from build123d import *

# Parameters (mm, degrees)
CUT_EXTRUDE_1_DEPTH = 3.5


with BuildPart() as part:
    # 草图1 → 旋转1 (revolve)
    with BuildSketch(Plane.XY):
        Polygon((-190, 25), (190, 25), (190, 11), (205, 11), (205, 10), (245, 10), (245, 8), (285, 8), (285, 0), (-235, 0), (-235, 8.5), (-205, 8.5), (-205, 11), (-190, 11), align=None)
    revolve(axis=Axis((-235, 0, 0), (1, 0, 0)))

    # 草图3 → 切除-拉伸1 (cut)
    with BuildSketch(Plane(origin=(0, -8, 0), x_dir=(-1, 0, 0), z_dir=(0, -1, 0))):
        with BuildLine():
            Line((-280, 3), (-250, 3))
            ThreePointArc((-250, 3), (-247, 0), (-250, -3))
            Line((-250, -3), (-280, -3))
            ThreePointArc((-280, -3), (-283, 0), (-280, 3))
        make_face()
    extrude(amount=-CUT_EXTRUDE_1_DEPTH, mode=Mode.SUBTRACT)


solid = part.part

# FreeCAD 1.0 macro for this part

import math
import FreeCAD as App
import Part
import Sketcher
from FreeCAD import Vector

doc = App.newDocument("Part")
body = doc.addObject("PartDesign::Body", "Body")

# Sketch on XY plane
sketch1 = body.newObject("Sketcher::SketchObject", "Sketch")
sketch1.AttachmentSupport = (doc.getObject("XY_Plane"), [""])
sketch1.MapMode = "FlatFace"
sketch1.addGeometry(Part.LineSegment(Vector(190, 25, 0), Vector(-190, 25, 0)), False)
sketch1.addGeometry(Part.LineSegment(Vector(-190, 25, 0), Vector(-190, 11, 0)), False)
sketch1.addGeometry(Part.LineSegment(Vector(-190, 11, 0), Vector(-205, 11, 0)), False)
sketch1.addGeometry(Part.LineSegment(Vector(-205, 11, 0), Vector(-205, 8.5, 0)), False)
sketch1.addGeometry(Part.LineSegment(Vector(-205, 8.5, 0), Vector(-235, 8.5, 0)), False)
sketch1.addGeometry(Part.LineSegment(Vector(-235, 8.5, 0), Vector(-235, 0, 0)), False)
sketch1.addGeometry(Part.LineSegment(Vector(-235, 0, 0), Vector(285, 0, 0)), False)
sketch1.addGeometry(Part.LineSegment(Vector(285, 0, 0), Vector(285, 8, 0)), False)
sketch1.addGeometry(Part.LineSegment(Vector(285, 8, 0), Vector(245, 8, 0)), False)
sketch1.addGeometry(Part.LineSegment(Vector(245, 8, 0), Vector(245, 10, 0)), False)
sketch1.addGeometry(Part.LineSegment(Vector(245, 10, 0), Vector(205, 10, 0)), False)
sketch1.addGeometry(Part.LineSegment(Vector(205, 10, 0), Vector(205, 11, 0)), False)
sketch1.addGeometry(Part.LineSegment(Vector(205, 11, 0), Vector(190, 11, 0)), False)
sketch1.addGeometry(Part.LineSegment(Vector(190, 11, 0), Vector(190, 25, 0)), False)
sketch1.addConstraint(Sketcher.Constraint("Coincident", 0, 2, 1, 1))
sketch1.addConstraint(Sketcher.Constraint("Coincident", 1, 2, 2, 1))
sketch1.addConstraint(Sketcher.Constraint("Coincident", 2, 2, 3, 1))
sketch1.addConstraint(Sketcher.Constraint("Coincident", 3, 2, 4, 1))
sketch1.addConstraint(Sketcher.Constraint("Coincident", 4, 2, 5, 1))
sketch1.addConstraint(Sketcher.Constraint("Coincident", 5, 2, 6, 1))
sketch1.addConstraint(Sketcher.Constraint("Coincident", 6, 2, 7, 1))
sketch1.addConstraint(Sketcher.Constraint("Coincident", 7, 2, 8, 1))
sketch1.addConstraint(Sketcher.Constraint("Coincident", 8, 2, 9, 1))
sketch1.addConstraint(Sketcher.Constraint("Coincident", 9, 2, 10, 1))
sketch1.addConstraint(Sketcher.Constraint("Coincident", 10, 2, 11, 1))
sketch1.addConstraint(Sketcher.Constraint("Coincident", 11, 2, 12, 1))
sketch1.addConstraint(Sketcher.Constraint("Coincident", 12, 2, 13, 1))
sketch1.addConstraint(Sketcher.Constraint("Coincident", 13, 2, 0, 1))
sketch1.addConstraint(Sketcher.Constraint("Horizontal", 0))
sketch1.addConstraint(Sketcher.Constraint("Vertical", 1))
sketch1.addConstraint(Sketcher.Constraint("Horizontal", 2))
sketch1.addConstraint(Sketcher.Constraint("Vertical", 3))
sketch1.addConstraint(Sketcher.Constraint("Horizontal", 4))
sketch1.addConstraint(Sketcher.Constraint("Vertical", 5))
sketch1.addConstraint(Sketcher.Constraint("Horizontal", 6))
sketch1.addConstraint(Sketcher.Constraint("Vertical", 7))
sketch1.addConstraint(Sketcher.Constraint("Horizontal", 8))
sketch1.addConstraint(Sketcher.Constraint("Vertical", 9))
sketch1.addConstraint(Sketcher.Constraint("Horizontal", 10))
sketch1.addConstraint(Sketcher.Constraint("Vertical", 11))
sketch1.addConstraint(Sketcher.Constraint("Horizontal", 12))
sketch1.addConstraint(Sketcher.Constraint("Vertical", 13))
sketch1.addConstraint(Sketcher.Constraint("Symmetric", 2, 2, 11, 2, -2))
sketch1.addConstraint(Sketcher.Constraint("PointOnObject", 5, 2, -1))
sketch1.addConstraint(Sketcher.Constraint("Equal", 8, 10))
sketch1.addConstraint(Sketcher.Constraint("Equal", 2, 12))
sketch1.addConstraint(Sketcher.Constraint("DistanceX", 0, 2, 0, 1, 380.0))
sketch1.addConstraint(Sketcher.Constraint("DistanceX", 2, 2, 2, 1, 15.0))
sketch1.addConstraint(Sketcher.Constraint("DistanceX", 4, 2, 4, 1, 30.0))
sketch1.addConstraint(Sketcher.Constraint("DistanceX", 6, 1, 6, 2, 520.0))
sketch1.addConstraint(Sketcher.Constraint("DistanceY", 1, 2, 1, 1, 14.0))
sketch1.addConstraint(Sketcher.Constraint("DistanceY", 7, 1, 7, 2, 8.0))
sketch1.addConstraint(Sketcher.Constraint("DistanceY", 9, 1, 9, 2, 2.0))
sketch1.addConstraint(Sketcher.Constraint("DistanceY", 11, 1, 11, 2, 1.0))
sketch1.addConstraint(Sketcher.Constraint("DistanceY", 3, 2, 3, 1, 2.5))
revolution = body.newObject("PartDesign::Revolution", "Revolution")
revolution.Profile = sketch1
revolution.ReferenceAxis = (sketch1, ["H_Axis"])
revolution.Angle = 360

# Sketch on XZ plane
sketch2 = body.newObject("Sketcher::SketchObject", "Sketch001")
sketch2.AttachmentSupport = (doc.getObject("XZ_Plane"), [""])
sketch2.MapMode = "FlatFace"
sketch2.AttachmentOffset = App.Placement(Vector(0, 0, 8), App.Rotation())
sketch2.addGeometry(Part.LineSegment(Vector(250, -3, 0), Vector(280, -3, 0)), False)
sketch2.addGeometry(Part.ArcOfCircle(Part.Circle(Vector(280, 0, 0), Vector(0, 0, 1), 3), math.radians(-90), math.radians(90)), False)
sketch2.addGeometry(Part.LineSegment(Vector(280, 3, 0), Vector(250, 3, 0)), False)
sketch2.addGeometry(Part.ArcOfCircle(Part.Circle(Vector(250, 0, 0), Vector(0, 0, 1), 3), math.radians(90), math.radians(270)), False)
sketch2.addConstraint(Sketcher.Constraint("Tangent", 0, 2, 1, 1))
sketch2.addConstraint(Sketcher.Constraint("Tangent", 1, 2, 2, 1))
sketch2.addConstraint(Sketcher.Constraint("Tangent", 2, 2, 3, 1))
sketch2.addConstraint(Sketcher.Constraint("Tangent", 3, 2, 0, 1))
sketch2.addConstraint(Sketcher.Constraint("Horizontal", 0))
sketch2.addConstraint(Sketcher.Constraint("Horizontal", 2))
sketch2.addConstraint(Sketcher.Constraint("PointOnObject", 1, 3, -1))
sketch2.addConstraint(Sketcher.Constraint("Radius", 1, 3.0))
sketch2.addConstraint(Sketcher.Constraint("DistanceX", 0, 1, 0, 2, 30.0))
sketch2.addConstraint(Sketcher.Constraint("DistanceX", -1, 1, 1, 3, 280.0))
pocket1 = body.newObject("PartDesign::Pocket", "Pocket")
pocket1.Profile = sketch2
pocket1.Length = 3.5

doc.recompute()
